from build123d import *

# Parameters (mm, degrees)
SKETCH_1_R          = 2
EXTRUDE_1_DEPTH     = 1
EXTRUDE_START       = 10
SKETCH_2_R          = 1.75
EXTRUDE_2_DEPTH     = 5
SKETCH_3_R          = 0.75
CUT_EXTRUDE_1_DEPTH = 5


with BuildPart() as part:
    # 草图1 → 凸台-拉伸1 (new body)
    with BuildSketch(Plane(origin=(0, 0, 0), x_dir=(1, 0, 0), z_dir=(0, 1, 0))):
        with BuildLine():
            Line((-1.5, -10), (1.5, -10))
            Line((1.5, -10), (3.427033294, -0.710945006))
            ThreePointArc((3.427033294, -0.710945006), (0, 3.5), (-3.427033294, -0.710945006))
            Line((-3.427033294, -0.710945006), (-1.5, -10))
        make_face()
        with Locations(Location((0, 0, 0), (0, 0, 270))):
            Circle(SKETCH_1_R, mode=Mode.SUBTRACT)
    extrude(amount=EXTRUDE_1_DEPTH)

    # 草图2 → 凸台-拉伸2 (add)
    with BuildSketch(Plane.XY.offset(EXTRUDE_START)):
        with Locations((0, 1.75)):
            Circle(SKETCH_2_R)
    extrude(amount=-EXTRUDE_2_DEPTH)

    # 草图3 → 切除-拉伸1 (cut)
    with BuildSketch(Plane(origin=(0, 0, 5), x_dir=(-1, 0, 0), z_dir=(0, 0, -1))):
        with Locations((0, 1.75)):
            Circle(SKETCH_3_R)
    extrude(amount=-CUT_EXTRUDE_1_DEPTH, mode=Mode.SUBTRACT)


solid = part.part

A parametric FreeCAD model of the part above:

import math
import FreeCAD as App
import Part
import Sketcher
from FreeCAD import Vector
Q = App.Units.Quantity

doc = App.newDocument("Part")
body = doc.addObject("PartDesign::Body", "Body")

sketch1 = doc.addObject("Sketcher::SketchObject", "Sketch")
body.addObject(sketch1)
sketch1.AttachmentSupport = (doc.XZ_Plane, [""])
sketch1.MapMode = "FlatFace"
sketch1.addGeometry([
    Part.LineSegment(Vector(-1.5, 10, 0), Vector(1.5, 10, 0)),
    Part.LineSegment(Vector(1.5, 10, 0), Vector(3.427033, 0.710945, 0)),
    Part.ArcOfCircle(Part.Circle(Vector(0, 0, 0), Vector(0, 0, 1), 3.5), math.radians(168.280114), math.radians(371.719886)),
    Part.LineSegment(Vector(-3.427033, 0.710945, 0), Vector(-1.5, 10, 0)),
    Part.Circle(Vector(0, 0, 0), Vector(0, 0, 1), 2),
], False)
sketch1.addConstraint([
    Sketcher.Constraint("Coincident", 0, 2, 1, 1),
    Sketcher.Constraint("Tangent", 1, 2, 2, 2),
    Sketcher.Constraint("Tangent", 2, 1, 3, 1),
    Sketcher.Constraint("Coincident", 3, 2, 0, 1),
    Sketcher.Constraint("Horizontal", 0),
    Sketcher.Constraint("Coincident", 2, 3, -1, 1),
    Sketcher.Constraint("Coincident", 4, 3, -1, 1),
    Sketcher.Constraint("Horizontal", 1, 2, 2, 1),
    Sketcher.Constraint("Diameter", 4, Q("4 mm")),
    Sketcher.Constraint("Radius", 2, Q("3.5 mm")),
    Sketcher.Constraint("DistanceX", 0, 1, 0, 2, Q("3 mm")),
    Sketcher.Constraint("DistanceY", -1, 1, 0, 2, Q("10 mm")),
])
pad1 = doc.addObject("PartDesign::Pad", "Pad")
body.addObject(pad1)
pad1.Profile = sketch1
pad1.Length = 1
pad1.Reversed = True

sketch2 = doc.addObject("Sketcher::SketchObject", "Sketch001")
body.addObject(sketch2)
sketch2.AttachmentSupport = (doc.XY_Plane, [""])
sketch2.MapMode = "FlatFace"
sketch2.AttachmentOffset = App.Placement(Vector(0, 0, 10), App.Rotation())
sketch2.addGeometry(Part.Circle(Vector(0, 1.75, 0), Vector(0, 0, 1), 1.75), False)
sketch2.addConstraint([
    Sketcher.Constraint("PointOnObject", 0, 3, -2),
    Sketcher.Constraint("Diameter", 0, Q("3.5 mm")),
    Sketcher.Constraint("DistanceY", -1, 1, 0, 3, Q("1.75 mm")),
])
pad2 = doc.addObject("PartDesign::Pad", "Pad001")
body.addObject(pad2)
pad2.Profile = sketch2
pad2.Length = 5
pad2.Reversed = True

sketch3 = doc.addObject("Sketcher::SketchObject", "Sketch002")
body.addObject(sketch3)
sketch3.AttachmentSupport = (doc.XY_Plane, [""])
sketch3.MapMode = "FlatFace"
sketch3.AttachmentOffset = App.Placement(Vector(0, 0, 5), App.Rotation())
sketch3.addGeometry(Part.Circle(Vector(0, 1.75, 0), Vector(0, 0, 1), 0.75), False)
sketch3.addConstraint([
    Sketcher.Constraint("PointOnObject", 0, 3, -2),
    Sketcher.Constraint("Diameter", 0, Q("1.5 mm")),
    Sketcher.Constraint("DistanceY", -1, 1, 0, 3, Q("1.75 mm")),
])
pocket1 = doc.addObject("PartDesign::Pocket", "Pocket")
body.addObject(pocket1)
pocket1.Profile = sketch3
pocket1.Length = 5
pocket1.Reversed = True

doc.recompute()
